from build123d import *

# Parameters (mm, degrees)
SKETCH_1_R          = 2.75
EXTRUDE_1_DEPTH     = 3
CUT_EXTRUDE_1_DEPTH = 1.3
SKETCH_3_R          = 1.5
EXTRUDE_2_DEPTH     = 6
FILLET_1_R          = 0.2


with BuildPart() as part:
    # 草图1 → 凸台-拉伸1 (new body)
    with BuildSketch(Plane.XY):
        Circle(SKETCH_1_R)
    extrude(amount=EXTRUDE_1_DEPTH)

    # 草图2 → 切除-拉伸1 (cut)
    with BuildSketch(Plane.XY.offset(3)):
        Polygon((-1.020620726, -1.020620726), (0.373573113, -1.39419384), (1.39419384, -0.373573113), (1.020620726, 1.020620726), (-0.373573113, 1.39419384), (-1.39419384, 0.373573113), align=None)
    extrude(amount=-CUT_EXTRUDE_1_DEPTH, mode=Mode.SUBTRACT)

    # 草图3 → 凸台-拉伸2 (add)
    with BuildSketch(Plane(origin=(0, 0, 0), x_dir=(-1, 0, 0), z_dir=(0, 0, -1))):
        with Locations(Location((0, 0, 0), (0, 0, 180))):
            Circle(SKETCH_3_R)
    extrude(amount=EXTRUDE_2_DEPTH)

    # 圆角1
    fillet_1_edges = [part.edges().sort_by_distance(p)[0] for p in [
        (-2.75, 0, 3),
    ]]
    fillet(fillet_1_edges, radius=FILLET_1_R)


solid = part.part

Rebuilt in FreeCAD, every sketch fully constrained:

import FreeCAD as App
import Part
import Sketcher
from FreeCAD import Vector
Q = App.Units.Quantity


def edges_at(feature, points):
    """Names of the edges that pass closest to the given points."""
    edges = feature.Shape.Edges
    near = lambda p: min(range(len(edges)), key=lambda i: edges[i].distToShape(Part.Vertex(*p))[0])
    return sorted({f"Edge{near(p) + 1}" for p in points})

doc = App.newDocument("Part")
body = doc.addObject("PartDesign::Body", "Body")

sketch1 = body.newObject("Sketcher::SketchObject", "Sketch")
sketch1.AttachmentSupport = (doc.getObject("XY_Plane"), [""])
sketch1.MapMode = "FlatFace"
sketch1.addGeometry(Part.Circle(Vector(0, 0, 0), Vector(0, 0, 1), 2.8), False)
sketch1.addConstraint([
    Sketcher.Constraint("Coincident", 0, 3, -1, 1),
    Sketcher.Constraint("Diameter", 0, 5.5),
])
pad1 = body.newObject("PartDesign::Pad", "Pad")
pad1.Profile = sketch1
pad1.Length = 3

sketch2 = body.newObject("Sketcher::SketchObject", "Sketch001")
sketch2.AttachmentSupport = (doc.getObject("XY_Plane"), [""])
sketch2.MapMode = "FlatFace"
sketch2.AttachmentOffset = App.Placement(Vector(0, 0, 3), App.Rotation())
sketch2.addGeometry([
    Part.LineSegment(Vector(-1, -1, 0), Vector(0.4, -1.4, 0)),
    Part.LineSegment(Vector(0.4, -1.4, 0), Vector(1.4, -0.4, 0)),
    Part.LineSegment(Vector(1.4, -0.4, 0), Vector(1, 1, 0)),
    Part.LineSegment(Vector(1, 1, 0), Vector(-0.4, 1.4, 0)),
    Part.LineSegment(Vector(-0.4, 1.4, 0), Vector(-1.4, 0.4, 0)),
    Part.LineSegment(Vector(-1.4, 0.4, 0), Vector(-1, -1, 0)),
], False)
sketch2.addConstraint([
    Sketcher.Constraint("Coincident", 0, 2, 1, 1),
    Sketcher.Constraint("Coincident", 1, 2, 2, 1),
    Sketcher.Constraint("Coincident", 2, 2, 3, 1),
    Sketcher.Constraint("Coincident", 3, 2, 4, 1),
    Sketcher.Constraint("Coincident", 4, 2, 5, 1),
    Sketcher.Constraint("Coincident", 5, 2, 0, 1),
    Sketcher.Constraint("Symmetric", 0, 2, 3, 2, -1, 1),
    Sketcher.Constraint("Symmetric", 1, 2, 4, 2, -1, 1),
    Sketcher.Constraint("Symmetric", 2, 2, 5, 2, -1, 1),
    Sketcher.Constraint("Equal", 0, 1),
    Sketcher.Constraint("Equal", 1, 2),
    Sketcher.Constraint("Angle", 0, Q("-15 deg")),
    Sketcher.Constraint("Angle", 1, Q("45 deg")),
    Sketcher.Constraint("Angle", 2, Q("105 deg")),
    Sketcher.Constraint("DistanceX", -1, 1, 2, 2, 1.020621),
])
pocket1 = body.newObject("PartDesign::Pocket", "Pocket")
pocket1.Profile = sketch2
pocket1.Length = 1.3

sketch3 = body.newObject("Sketcher::SketchObject", "Sketch002")
sketch3.AttachmentSupport = (doc.getObject("XY_Plane"), [""])
sketch3.MapMode = "FlatFace"
sketch3.addGeometry(Part.Circle(Vector(0, 0, 0), Vector(0, 0, 1), 1.5), False)
sketch3.addConstraint([
    Sketcher.Constraint("Coincident", 0, 3, -1, 1),
    Sketcher.Constraint("Diameter", 0, 3.0),
])
pad2 = body.newObject("PartDesign::Pad", "Pad001")
pad2.Profile = sketch3
pad2.Length = 6
pad2.Reversed = True
doc.recompute()

fillet = body.newObject("PartDesign::Fillet", "Fillet")
fillet.Base = (pad2, edges_at(pad2, [(-2.75, 0, 3)]))
fillet.Radius = 0.2

doc.recompute()
